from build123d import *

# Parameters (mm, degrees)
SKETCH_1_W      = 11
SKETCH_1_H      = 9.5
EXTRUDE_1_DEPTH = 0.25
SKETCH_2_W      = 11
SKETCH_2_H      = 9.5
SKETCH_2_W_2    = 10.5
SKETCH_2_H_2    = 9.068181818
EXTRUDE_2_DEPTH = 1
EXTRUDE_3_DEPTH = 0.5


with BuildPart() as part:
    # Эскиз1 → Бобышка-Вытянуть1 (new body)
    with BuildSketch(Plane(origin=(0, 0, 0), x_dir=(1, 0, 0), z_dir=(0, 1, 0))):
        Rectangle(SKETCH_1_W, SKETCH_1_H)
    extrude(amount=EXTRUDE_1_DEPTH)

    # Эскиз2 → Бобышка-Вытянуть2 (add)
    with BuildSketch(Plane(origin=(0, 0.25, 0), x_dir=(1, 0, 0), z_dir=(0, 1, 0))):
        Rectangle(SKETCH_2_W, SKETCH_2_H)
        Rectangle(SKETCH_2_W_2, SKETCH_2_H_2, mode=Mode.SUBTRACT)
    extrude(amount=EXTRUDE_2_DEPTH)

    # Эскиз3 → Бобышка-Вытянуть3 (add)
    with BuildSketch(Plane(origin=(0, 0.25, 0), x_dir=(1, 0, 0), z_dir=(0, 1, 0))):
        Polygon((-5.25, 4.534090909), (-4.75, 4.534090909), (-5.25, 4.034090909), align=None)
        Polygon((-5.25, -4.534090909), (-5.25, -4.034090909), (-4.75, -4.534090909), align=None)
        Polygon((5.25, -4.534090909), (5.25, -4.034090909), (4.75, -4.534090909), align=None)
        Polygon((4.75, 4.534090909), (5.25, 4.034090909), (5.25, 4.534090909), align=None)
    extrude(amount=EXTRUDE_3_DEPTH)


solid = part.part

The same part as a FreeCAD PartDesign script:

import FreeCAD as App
import Part
import Sketcher

V = App.Vector
Q = App.Units.Quantity


def add_polygon(sketch, points):
    """Adds a closed chain of lines whose ends are joined by coincident constraints."""
    first, n = sketch.GeometryCount, len(points)
    for a, b in zip(points, points[1:] + points[:1]):
        sketch.addGeometry(Part.LineSegment(App.Vector(*a, 0), App.Vector(*b, 0)), False)
    for i in range(n):
        sketch.addConstraint(Sketcher.Constraint("Coincident", first + i, 2, first + (i + 1) % n, 1))

doc = App.newDocument("Part")
params = doc.addObject("Spreadsheet::Sheet", "Params")
for row, (alias, value) in enumerate([
    ("sketch1_width", "11 mm"),
    ("sketch1_height", "9.5 mm"),
    ("pad1_length", "0.25 mm"),
    ("sketch2_width", "11 mm"),
    ("sketch2_width2", "10.5 mm"),
    ("sketch2_height", "9.5 mm"),
    ("pad2_length", "1 mm"),
    ("sketch3_width", "0.5 mm"),
    ("pad3_length", "0.5 mm"),
], start=1):
    params.set(f"A{row}", alias)
    params.set(f"B{row}", "=" + value)
    params.setAlias(f"B{row}", alias)

body = doc.addObject("PartDesign::Body", "Body")

# Sketch on XZ plane
sketch1 = body.newObject("Sketcher::SketchObject", "Sketch")
sketch1.AttachmentSupport = (doc.getObject("XZ_Plane"), [""])
sketch1.MapMode = "FlatFace"
add_polygon(sketch1, [(-6, -5), (-6, 5), (6, 5), (6, -5)])  # lines 0-3
sketch1.addConstraint([
    Sketcher.Constraint("Vertical", 0),
    Sketcher.Constraint("Horizontal", 1),
    Sketcher.Constraint("Vertical", 2),
    Sketcher.Constraint("Horizontal", 3),
    Sketcher.Constraint("Symmetric", 0, 2, 2, 2, -1, 1),
    Sketcher.Constraint("DistanceX", 1, 1, 1, 2, Q("11 mm")),
    Sketcher.Constraint("DistanceY", 0, 1, 0, 2, Q("9.5 mm")),
])
sketch1.setExpression("Constraints[9]", "Params.sketch1_width")
sketch1.setExpression("Constraints[10]", "Params.sketch1_height")
pad1 = body.newObject("PartDesign::Pad", "Pad")
pad1.Profile = sketch1
pad1.setExpression("Length", "Params.pad1_length")
pad1.Reversed = True

# Sketch on XZ plane
sketch2 = body.newObject("Sketcher::SketchObject", "Sketch001")
sketch2.AttachmentSupport = (doc.getObject("XZ_Plane"), [""])
sketch2.MapMode = "FlatFace"
sketch2.AttachmentOffset = App.Placement(V(0, 0, -0.25), App.Rotation())
add_polygon(sketch2, [(-6, -5), (-6, 5), (6, 5), (6, -5)])  # lines 0-3
add_polygon(sketch2, [(5, 5), (-5, 5), (-5, -5), (5, -5)])  # lines 4-7
sketch2.addConstraint([
    Sketcher.Constraint("Vertical", 0),
    Sketcher.Constraint("Horizontal", 1),
    Sketcher.Constraint("Vertical", 2),
    Sketcher.Constraint("Horizontal", 3),
    Sketcher.Constraint("Horizontal", 4),
    Sketcher.Constraint("Vertical", 5),
    Sketcher.Constraint("Horizontal", 6),
    Sketcher.Constraint("Vertical", 7),
    Sketcher.Constraint("Symmetric", 0, 2, 2, 2, -1, 1),
    Sketcher.Constraint("Symmetric", 4, 2, 6, 2, -1, 1),
    Sketcher.Constraint("DistanceX", 1, 1, 1, 2, Q("11 mm")),
    Sketcher.Constraint("DistanceX", 4, 2, 4, 1, Q("10.5 mm")),
    Sketcher.Constraint("DistanceY", 0, 1, 0, 2, Q("9.5 mm")),
    Sketcher.Constraint("DistanceY", 5, 2, 5, 1, Q("9.068182 mm")),
])
sketch2.setExpression("Constraints[18]", "Params.sketch2_width")
sketch2.setExpression("Constraints[19]", "Params.sketch2_width2")
sketch2.setExpression("Constraints[20]", "Params.sketch2_height")
pad2 = body.newObject("PartDesign::Pad", "Pad001")
pad2.Profile = sketch2
pad2.setExpression("Length", "Params.pad2_length")
pad2.Reversed = True

# Sketch on XZ plane
sketch3 = body.newObject("Sketcher::SketchObject", "Sketch002")
sketch3.AttachmentSupport = (doc.getObject("XZ_Plane"), [""])
sketch3.MapMode = "FlatFace"
sketch3.AttachmentOffset = App.Placement(V(0, 0, -0.25), App.Rotation())
add_polygon(sketch3, [(-4.8, -4.5), (-5.2, -4.5), (-5.2, -4)])  # lines 0-2
add_polygon(sketch3, [(-5.2, 4), (-5.2, 4.5), (-4.8, 4.5)])  # lines 3-5
add_polygon(sketch3, [(5.2, 4.5), (5.2, 4), (4.8, 4.5)])  # lines 6-8
add_polygon(sketch3, [(4.8, -4.5), (5.2, -4), (5.2, -4.5)])  # lines 9-11
sketch3.addConstraint([
    Sketcher.Constraint("Horizontal", 0),
    Sketcher.Constraint("Vertical", 1),
    Sketcher.Constraint("Vertical", 3),
    Sketcher.Constraint("Horizontal", 4),
    Sketcher.Constraint("Vertical", 6),
    Sketcher.Constraint("Horizontal", 8),
    Sketcher.Constraint("Vertical", 10),
    Sketcher.Constraint("Horizontal", 11),
    Sketcher.Constraint("Symmetric", 1, 2, 6, 2, -1, 1),
    Sketcher.Constraint("Symmetric", 2, 2, 7, 2, -1, 1),
    Sketcher.Constraint("Symmetric", 5, 2, 9, 2, -1, 1),
    Sketcher.Constraint("Symmetric", 4, 2, 11, 2, -1, 1),
    Sketcher.Constraint("Symmetric", 5, 2, 6, 2, -2),
    Sketcher.Constraint("Symmetric", 4, 2, 7, 2, -2),
    Sketcher.Constraint("Perpendicular", 2, 5),
    Sketcher.Constraint("DistanceX", 0, 2, 0, 1, Q("0.5 mm")),
    Sketcher.Constraint("DistanceX", 4, 2, 6, 2, Q("10 mm")),
    Sketcher.Constraint("DistanceY", 0, 2, -1, 1, Q("4.534091 mm")),
])
sketch3.setExpression("Constraints[27]", "Params.sketch3_width")
pad3 = body.newObject("PartDesign::Pad", "Pad002")
pad3.Profile = sketch3
pad3.setExpression("Length", "Params.pad3_length")
pad3.Reversed = True

doc.recompute()
